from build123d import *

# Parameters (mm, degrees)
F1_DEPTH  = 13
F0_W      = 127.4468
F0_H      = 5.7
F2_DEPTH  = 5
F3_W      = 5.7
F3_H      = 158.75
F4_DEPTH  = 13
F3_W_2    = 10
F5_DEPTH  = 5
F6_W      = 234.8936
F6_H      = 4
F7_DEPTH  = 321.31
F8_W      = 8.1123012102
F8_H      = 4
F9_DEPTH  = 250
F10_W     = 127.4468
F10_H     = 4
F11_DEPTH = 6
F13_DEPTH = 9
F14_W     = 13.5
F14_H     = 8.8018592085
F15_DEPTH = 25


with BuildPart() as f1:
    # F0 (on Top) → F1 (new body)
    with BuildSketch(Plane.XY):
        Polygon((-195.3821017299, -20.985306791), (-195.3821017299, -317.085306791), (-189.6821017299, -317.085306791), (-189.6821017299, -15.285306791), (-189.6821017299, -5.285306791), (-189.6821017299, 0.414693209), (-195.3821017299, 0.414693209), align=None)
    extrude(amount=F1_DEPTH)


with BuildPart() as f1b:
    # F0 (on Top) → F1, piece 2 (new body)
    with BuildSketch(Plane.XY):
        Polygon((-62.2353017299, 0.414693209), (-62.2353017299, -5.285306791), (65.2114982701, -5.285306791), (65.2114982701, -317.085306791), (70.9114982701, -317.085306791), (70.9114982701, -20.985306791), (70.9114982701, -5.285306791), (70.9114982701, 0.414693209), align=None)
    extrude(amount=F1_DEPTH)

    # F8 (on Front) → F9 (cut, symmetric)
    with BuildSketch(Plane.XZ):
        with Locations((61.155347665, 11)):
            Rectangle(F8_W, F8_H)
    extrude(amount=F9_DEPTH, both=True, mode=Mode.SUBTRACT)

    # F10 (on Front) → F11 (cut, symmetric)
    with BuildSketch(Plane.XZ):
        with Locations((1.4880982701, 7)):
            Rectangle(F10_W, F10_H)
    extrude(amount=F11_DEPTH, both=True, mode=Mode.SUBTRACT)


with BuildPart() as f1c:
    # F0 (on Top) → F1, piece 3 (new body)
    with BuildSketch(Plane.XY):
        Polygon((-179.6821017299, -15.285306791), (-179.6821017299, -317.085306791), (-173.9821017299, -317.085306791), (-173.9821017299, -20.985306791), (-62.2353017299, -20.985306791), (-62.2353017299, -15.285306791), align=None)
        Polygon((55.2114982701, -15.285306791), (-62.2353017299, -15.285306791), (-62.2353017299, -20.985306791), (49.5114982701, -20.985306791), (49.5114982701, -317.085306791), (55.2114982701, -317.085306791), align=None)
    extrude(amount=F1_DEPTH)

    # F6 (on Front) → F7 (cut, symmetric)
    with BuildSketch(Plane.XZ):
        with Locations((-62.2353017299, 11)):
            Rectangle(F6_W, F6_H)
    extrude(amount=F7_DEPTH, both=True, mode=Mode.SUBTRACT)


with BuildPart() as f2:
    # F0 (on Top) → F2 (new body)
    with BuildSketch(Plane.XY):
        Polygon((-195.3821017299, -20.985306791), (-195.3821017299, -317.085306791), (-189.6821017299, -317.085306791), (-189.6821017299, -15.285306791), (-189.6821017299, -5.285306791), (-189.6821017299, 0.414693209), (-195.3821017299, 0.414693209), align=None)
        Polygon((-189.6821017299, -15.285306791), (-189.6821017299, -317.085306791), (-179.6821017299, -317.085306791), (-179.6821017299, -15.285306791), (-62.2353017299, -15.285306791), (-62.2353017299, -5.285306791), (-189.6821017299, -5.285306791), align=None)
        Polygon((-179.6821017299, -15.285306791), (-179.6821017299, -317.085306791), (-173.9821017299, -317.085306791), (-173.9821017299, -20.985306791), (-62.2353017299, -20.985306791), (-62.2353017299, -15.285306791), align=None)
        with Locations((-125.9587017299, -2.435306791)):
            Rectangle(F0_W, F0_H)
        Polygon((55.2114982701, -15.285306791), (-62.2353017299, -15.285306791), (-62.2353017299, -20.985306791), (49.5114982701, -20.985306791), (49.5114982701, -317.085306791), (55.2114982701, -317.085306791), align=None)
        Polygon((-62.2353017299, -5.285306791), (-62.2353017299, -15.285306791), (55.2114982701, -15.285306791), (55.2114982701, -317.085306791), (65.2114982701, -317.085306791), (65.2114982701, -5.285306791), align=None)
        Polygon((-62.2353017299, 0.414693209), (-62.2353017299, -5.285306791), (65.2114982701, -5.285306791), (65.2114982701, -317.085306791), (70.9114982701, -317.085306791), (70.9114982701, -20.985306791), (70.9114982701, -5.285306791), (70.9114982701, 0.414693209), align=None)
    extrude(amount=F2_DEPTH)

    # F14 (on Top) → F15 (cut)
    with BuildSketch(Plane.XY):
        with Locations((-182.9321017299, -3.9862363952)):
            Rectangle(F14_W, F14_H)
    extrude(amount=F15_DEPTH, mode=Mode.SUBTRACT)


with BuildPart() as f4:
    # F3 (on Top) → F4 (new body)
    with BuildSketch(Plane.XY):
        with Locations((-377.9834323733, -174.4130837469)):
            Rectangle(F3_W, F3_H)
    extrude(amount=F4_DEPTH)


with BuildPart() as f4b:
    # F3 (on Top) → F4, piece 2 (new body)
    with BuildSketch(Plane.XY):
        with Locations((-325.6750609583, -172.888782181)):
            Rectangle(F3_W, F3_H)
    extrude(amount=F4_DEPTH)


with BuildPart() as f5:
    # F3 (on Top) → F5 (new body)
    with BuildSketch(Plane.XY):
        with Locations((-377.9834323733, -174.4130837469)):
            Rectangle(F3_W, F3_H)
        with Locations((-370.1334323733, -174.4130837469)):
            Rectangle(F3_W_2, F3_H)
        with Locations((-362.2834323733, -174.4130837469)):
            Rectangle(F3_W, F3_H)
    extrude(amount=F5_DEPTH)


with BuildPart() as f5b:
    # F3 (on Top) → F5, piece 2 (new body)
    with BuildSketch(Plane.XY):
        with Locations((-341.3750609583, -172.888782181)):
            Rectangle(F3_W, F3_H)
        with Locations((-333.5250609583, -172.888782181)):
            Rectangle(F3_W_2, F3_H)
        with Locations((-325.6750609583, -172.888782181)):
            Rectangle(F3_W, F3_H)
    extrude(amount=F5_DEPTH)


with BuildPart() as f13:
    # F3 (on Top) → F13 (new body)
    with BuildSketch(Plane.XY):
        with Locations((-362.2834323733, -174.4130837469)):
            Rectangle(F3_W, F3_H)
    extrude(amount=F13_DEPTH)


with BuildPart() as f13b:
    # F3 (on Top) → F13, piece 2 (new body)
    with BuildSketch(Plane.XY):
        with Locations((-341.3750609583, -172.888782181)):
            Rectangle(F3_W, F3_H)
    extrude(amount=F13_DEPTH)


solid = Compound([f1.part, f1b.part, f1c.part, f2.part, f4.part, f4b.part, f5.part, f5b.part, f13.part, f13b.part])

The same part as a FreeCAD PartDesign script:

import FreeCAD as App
import Part
import Sketcher
from FreeCAD import Vector
Q = App.Units.Quantity

doc = App.newDocument("Part")
body = doc.addObject("PartDesign::Body", "Body")

# Sketch on XY plane
sketch1 = body.newObject("Sketcher::SketchObject", "Sketch")
sketch1.AttachmentSupport = (doc.getObject("XY_Plane"), [""])
sketch1.MapMode = "FlatFace"
sketch1.addGeometry(Part.LineSegment(Vector(-195, -317, 0), Vector(-190, -317, 0)), False)
sketch1.addGeometry(Part.LineSegment(Vector(-190, -317, 0), Vector(-190, 0, 0)), False)
sketch1.addGeometry(Part.LineSegment(Vector(-190, 0, 0), Vector(-195, 0, 0)), False)
sketch1.addGeometry(Part.LineSegment(Vector(-195, 0, 0), Vector(-195, -317, 0)), False)
sketch1.addConstraint(Sketcher.Constraint("Coincident", 0, 2, 1, 1))
sketch1.addConstraint(Sketcher.Constraint("Coincident", 1, 2, 2, 1))
sketch1.addConstraint(Sketcher.Constraint("Coincident", 2, 2, 3, 1))
sketch1.addConstraint(Sketcher.Constraint("Coincident", 3, 2, 0, 1))
sketch1.addConstraint(Sketcher.Constraint("Horizontal", 0))
sketch1.addConstraint(Sketcher.Constraint("Vertical", 1))
sketch1.addConstraint(Sketcher.Constraint("Horizontal", 2))
sketch1.addConstraint(Sketcher.Constraint("Vertical", 3))
sketch1.addConstraint(Sketcher.Constraint("DistanceX", 0, 1, 0, 2, Q("5.7 mm")))
sketch1.addConstraint(Sketcher.Constraint("DistanceY", 1, 1, 1, 2, Q("317.5 mm")))
sketch1.addConstraint(Sketcher.Constraint("DistanceX", 0, 2, -1, 1, Q("189.682102 mm")))
sketch1.addConstraint(Sketcher.Constraint("DistanceY", 0, 2, -1, 1, Q("317.085307 mm")))
pad1 = body.newObject("PartDesign::Pad", "Pad")
pad1.Profile = sketch1
pad1.Length = 13
body2 = doc.addObject("PartDesign::Body", "Body001")
body2.AllowCompound = True

# Sketch on XY plane
sketch2 = body2.newObject("Sketcher::SketchObject", "Sketch001")
sketch2.AttachmentSupport = (doc.getObject("XY_Plane001"), [""])
sketch2.MapMode = "FlatFace"
sketch2.addGeometry(Part.LineSegment(Vector(-62, 0, 0), Vector(-62, -5, 0)), False)
sketch2.addGeometry(Part.LineSegment(Vector(-62, -5, 0), Vector(65, -5, 0)), False)
sketch2.addGeometry(Part.LineSegment(Vector(65, -5, 0), Vector(65, -317, 0)), False)
sketch2.addGeometry(Part.LineSegment(Vector(65, -317, 0), Vector(71, -317, 0)), False)
sketch2.addGeometry(Part.LineSegment(Vector(71, -317, 0), Vector(71, 0, 0)), False)
sketch2.addGeometry(Part.LineSegment(Vector(71, 0, 0), Vector(-62, 0, 0)), False)
sketch2.addConstraint(Sketcher.Constraint("Coincident", 0, 2, 1, 1))
sketch2.addConstraint(Sketcher.Constraint("Coincident", 1, 2, 2, 1))
sketch2.addConstraint(Sketcher.Constraint("Coincident", 2, 2, 3, 1))
sketch2.addConstraint(Sketcher.Constraint("Coincident", 3, 2, 4, 1))
sketch2.addConstraint(Sketcher.Constraint("Coincident", 4, 2, 5, 1))
sketch2.addConstraint(Sketcher.Constraint("Coincident", 5, 2, 0, 1))
sketch2.addConstraint(Sketcher.Constraint("Vertical", 0))
sketch2.addConstraint(Sketcher.Constraint("Horizontal", 1))
sketch2.addConstraint(Sketcher.Constraint("Vertical", 2))
sketch2.addConstraint(Sketcher.Constraint("Horizontal", 3))
sketch2.addConstraint(Sketcher.Constraint("Vertical", 4))
sketch2.addConstraint(Sketcher.Constraint("Horizontal", 5))
sketch2.addConstraint(Sketcher.Constraint("Equal", 3, 0))
sketch2.addConstraint(Sketcher.Constraint("DistanceX", 3, 1, 3, 2, Q("5.7 mm")))
sketch2.addConstraint(Sketcher.Constraint("DistanceY", 2, 2, 2, 1, Q("311.8 mm")))
sketch2.addConstraint(Sketcher.Constraint("DistanceX", 1, 1, 1, 2, Q("127.4468 mm")))
sketch2.addConstraint(Sketcher.Constraint("DistanceX", 0, 2, -1, 1, Q("62.235302 mm")))
sketch2.addConstraint(Sketcher.Constraint("DistanceY", 0, 2, -1, 1, Q("5.285307 mm")))
pad2 = body2.newObject("PartDesign::Pad", "Pad001")
pad2.Profile = sketch2
pad2.Length = 13

# Sketch on XZ plane
sketch3 = body2.newObject("Sketcher::SketchObject", "Sketch002")
sketch3.AttachmentSupport = (doc.getObject("XZ_Plane001"), [""])
sketch3.MapMode = "FlatFace"
sketch3.addGeometry(Part.LineSegment(Vector(57.1, 13, 0), Vector(57.1, 9, 0)), False)
sketch3.addGeometry(Part.LineSegment(Vector(57.1, 9, 0), Vector(65.2, 9, 0)), False)
sketch3.addGeometry(Part.LineSegment(Vector(65.2, 9, 0), Vector(65.2, 13, 0)), False)
sketch3.addGeometry(Part.LineSegment(Vector(65.2, 13, 0), Vector(57.1, 13, 0)), False)
sketch3.addConstraint(Sketcher.Constraint("Coincident", 0, 2, 1, 1))
sketch3.addConstraint(Sketcher.Constraint("Coincident", 1, 2, 2, 1))
sketch3.addConstraint(Sketcher.Constraint("Coincident", 2, 2, 3, 1))
sketch3.addConstraint(Sketcher.Constraint("Coincident", 3, 2, 0, 1))
sketch3.addConstraint(Sketcher.Constraint("Vertical", 0))
sketch3.addConstraint(Sketcher.Constraint("Horizontal", 1))
sketch3.addConstraint(Sketcher.Constraint("Vertical", 2))
sketch3.addConstraint(Sketcher.Constraint("Horizontal", 3))
sketch3.addConstraint(Sketcher.Constraint("DistanceY", 0, 2, 0, 1, Q("4 mm")))
sketch3.addConstraint(Sketcher.Constraint("DistanceY", -1, 1, 0, 2, Q("9 mm")))
sketch3.addConstraint(Sketcher.Constraint("DistanceX", 1, 1, 1, 2, Q("8.112301 mm")))
sketch3.addConstraint(Sketcher.Constraint("DistanceX", -1, 1, 1, 2, Q("65.211498 mm")))
pocket1 = body2.newObject("PartDesign::Pocket", "Pocket")
pocket1.Profile = sketch3
pocket1.Length = 500
pocket1.Midplane = True

# Sketch on XZ plane
sketch4 = body2.newObject("Sketcher::SketchObject", "Sketch003")
sketch4.AttachmentSupport = (doc.getObject("XZ_Plane001"), [""])
sketch4.MapMode = "FlatFace"
sketch4.addGeometry(Part.LineSegment(Vector(-62.2, 9, 0), Vector(-62.2, 5, 0)), False)
sketch4.addGeometry(Part.LineSegment(Vector(-62.2, 5, 0), Vector(65.2, 5, 0)), False)
sketch4.addGeometry(Part.LineSegment(Vector(65.2, 5, 0), Vector(65.2, 9, 0)), False)
sketch4.addGeometry(Part.LineSegment(Vector(65.2, 9, 0), Vector(-62.2, 9, 0)), False)
sketch4.addConstraint(Sketcher.Constraint("Coincident", 0, 2, 1, 1))
sketch4.addConstraint(Sketcher.Constraint("Coincident", 1, 2, 2, 1))
sketch4.addConstraint(Sketcher.Constraint("Coincident", 2, 2, 3, 1))
sketch4.addConstraint(Sketcher.Constraint("Coincident", 3, 2, 0, 1))
sketch4.addConstraint(Sketcher.Constraint("Vertical", 0))
sketch4.addConstraint(Sketcher.Constraint("Horizontal", 1))
sketch4.addConstraint(Sketcher.Constraint("Vertical", 2))
sketch4.addConstraint(Sketcher.Constraint("Horizontal", 3))
sketch4.addConstraint(Sketcher.Constraint("DistanceY", 0, 2, 0, 1, Q("4 mm")))
sketch4.addConstraint(Sketcher.Constraint("DistanceY", -1, 1, 0, 2, Q("5 mm")))
sketch4.addConstraint(Sketcher.Constraint("DistanceX", 1, 1, 1, 2, Q("127.4468 mm")))
sketch4.addConstraint(Sketcher.Constraint("DistanceX", 0, 2, -1, 1, Q("62.235302 mm")))
pocket2 = body2.newObject("PartDesign::Pocket", "Pocket001")
pocket2.Profile = sketch4
pocket2.Length = 12
pocket2.Midplane = True
body3 = doc.addObject("PartDesign::Body", "Body002")

# Sketch on XY plane
sketch5 = body3.newObject("Sketcher::SketchObject", "Sketch004")
sketch5.AttachmentSupport = (doc.getObject("XY_Plane002"), [""])
sketch5.MapMode = "FlatFace"
sketch5.addGeometry(Part.LineSegment(Vector(-180, -15, 0), Vector(-180, -317, 0)), False)
sketch5.addGeometry(Part.LineSegment(Vector(-180, -317, 0), Vector(-174, -317, 0)), False)
sketch5.addGeometry(Part.LineSegment(Vector(-174, -317, 0), Vector(-174, -21, 0)), False)
sketch5.addGeometry(Part.LineSegment(Vector(-174, -21, 0), Vector(50, -21, 0)), False)
sketch5.addGeometry(Part.LineSegment(Vector(50, -21, 0), Vector(50, -317, 0)), False)
sketch5.addGeometry(Part.LineSegment(Vector(50, -317, 0), Vector(55, -317, 0)), False)
sketch5.addGeometry(Part.LineSegment(Vector(55, -317, 0), Vector(55, -15, 0)), False)
sketch5.addGeometry(Part.LineSegment(Vector(55, -15, 0), Vector(-180, -15, 0)), False)
sketch5.addConstraint(Sketcher.Constraint("Coincident", 0, 2, 1, 1))
sketch5.addConstraint(Sketcher.Constraint("Coincident", 1, 2, 2, 1))
sketch5.addConstraint(Sketcher.Constraint("Coincident", 2, 2, 3, 1))
sketch5.addConstraint(Sketcher.Constraint("Coincident", 3, 2, 4, 1))
sketch5.addConstraint(Sketcher.Constraint("Coincident", 4, 2, 5, 1))
sketch5.addConstraint(Sketcher.Constraint("Coincident", 5, 2, 6, 1))
sketch5.addConstraint(Sketcher.Constraint("Coincident", 6, 2, 7, 1))
sketch5.addConstraint(Sketcher.Constraint("Coincident", 7, 2, 0, 1))
sketch5.addConstraint(Sketcher.Constraint("Vertical", 0))
sketch5.addConstraint(Sketcher.Constraint("Horizontal", 1))
sketch5.addConstraint(Sketcher.Constraint("Vertical", 2))
sketch5.addConstraint(Sketcher.Constraint("Horizontal", 3))
sketch5.addConstraint(Sketcher.Constraint("Vertical", 4))
sketch5.addConstraint(Sketcher.Constraint("Horizontal", 5))
sketch5.addConstraint(Sketcher.Constraint("Vertical", 6))
sketch5.addConstraint(Sketcher.Constraint("Horizontal", 7))
sketch5.addConstraint(Sketcher.Constraint("Horizontal", 1, 2, 4, 2))
sketch5.addConstraint(Sketcher.Constraint("Equal", 1, 5))
sketch5.addConstraint(Sketcher.Constraint("DistanceX", 1, 1, 1, 2, Q("5.7 mm")))
sketch5.addConstraint(Sketcher.Constraint("DistanceY", 0, 2, 0, 1, Q("301.8 mm")))
sketch5.addConstraint(Sketcher.Constraint("DistanceY", 2, 1, 2, 2, Q("296.1 mm")))
sketch5.addConstraint(Sketcher.Constraint("DistanceX", 3, 1, 3, 2, Q("223.4936 mm")))
sketch5.addConstraint(Sketcher.Constraint("DistanceX", 0, 2, -1, 1, Q("179.682102 mm")))
sketch5.addConstraint(Sketcher.Constraint("DistanceY", 0, 2, -1, 1, Q("317.085307 mm")))
pad3 = body3.newObject("PartDesign::Pad", "Pad002")
pad3.Profile = sketch5
pad3.Length = 13

# Sketch on XZ plane
sketch6 = body3.newObject("Sketcher::SketchObject", "Sketch005")
sketch6.AttachmentSupport = (doc.getObject("XZ_Plane002"), [""])
sketch6.MapMode = "FlatFace"
sketch6.addGeometry(Part.LineSegment(Vector(-179.7, 13, 0), Vector(-179.7, 9, 0)), False)
sketch6.addGeometry(Part.LineSegment(Vector(-179.7, 9, 0), Vector(55.2, 9, 0)), False)
sketch6.addGeometry(Part.LineSegment(Vector(55.2, 9, 0), Vector(55.2, 13, 0)), False)
sketch6.addGeometry(Part.LineSegment(Vector(55.2, 13, 0), Vector(-179.7, 13, 0)), False)
sketch6.addConstraint(Sketcher.Constraint("Coincident", 0, 2, 1, 1))
sketch6.addConstraint(Sketcher.Constraint("Coincident", 1, 2, 2, 1))
sketch6.addConstraint(Sketcher.Constraint("Coincident", 2, 2, 3, 1))
sketch6.addConstraint(Sketcher.Constraint("Coincident", 3, 2, 0, 1))
sketch6.addConstraint(Sketcher.Constraint("Vertical", 0))
sketch6.addConstraint(Sketcher.Constraint("Horizontal", 1))
sketch6.addConstraint(Sketcher.Constraint("Vertical", 2))
sketch6.addConstraint(Sketcher.Constraint("Horizontal", 3))
sketch6.addConstraint(Sketcher.Constraint("DistanceY", 0, 2, 0, 1, Q("4 mm")))
sketch6.addConstraint(Sketcher.Constraint("DistanceY", -1, 1, 0, 2, Q("9 mm")))
sketch6.addConstraint(Sketcher.Constraint("DistanceX", 1, 1, 1, 2, Q("234.8936 mm")))
sketch6.addConstraint(Sketcher.Constraint("DistanceX", 0, 2, -1, 1, Q("179.682102 mm")))
pocket3 = body3.newObject("PartDesign::Pocket", "Pocket002")
pocket3.Profile = sketch6
pocket3.Length = 642.62
pocket3.Midplane = True
body4 = doc.addObject("PartDesign::Body", "Body003")

# Sketch on XY plane
sketch7 = body4.newObject("Sketcher::SketchObject", "Sketch006")
sketch7.AttachmentSupport = (doc.getObject("XY_Plane003"), [""])
sketch7.MapMode = "FlatFace"
sketch7.addGeometry(Part.LineSegment(Vector(-195, -317, 0), Vector(-174, -317, 0)), False)
sketch7.addGeometry(Part.LineSegment(Vector(-174, -317, 0), Vector(-174, -21, 0)), False)
sketch7.addGeometry(Part.LineSegment(Vector(-174, -21, 0), Vector(50, -21, 0)), False)
sketch7.addGeometry(Part.LineSegment(Vector(50, -21, 0), Vector(50, -317, 0)), False)
sketch7.addGeometry(Part.LineSegment(Vector(50, -317, 0), Vector(71, -317, 0)), False)
sketch7.addGeometry(Part.LineSegment(Vector(71, -317, 0), Vector(71, 0, 0)), False)
sketch7.addGeometry(Part.LineSegment(Vector(71, 0, 0), Vector(-195, 0, 0)), False)
sketch7.addGeometry(Part.LineSegment(Vector(-195, 0, 0), Vector(-195, -317, 0)), False)
sketch7.addConstraint(Sketcher.Constraint("Coincident", 0, 2, 1, 1))
sketch7.addConstraint(Sketcher.Constraint("Coincident", 1, 2, 2, 1))
sketch7.addConstraint(Sketcher.Constraint("Coincident", 2, 2, 3, 1))
sketch7.addConstraint(Sketcher.Constraint("Coincident", 3, 2, 4, 1))
sketch7.addConstraint(Sketcher.Constraint("Coincident", 4, 2, 5, 1))
sketch7.addConstraint(Sketcher.Constraint("Coincident", 5, 2, 6, 1))
sketch7.addConstraint(Sketcher.Constraint("Coincident", 6, 2, 7, 1))
sketch7.addConstraint(Sketcher.Constraint("Coincident", 7, 2, 0, 1))
sketch7.addConstraint(Sketcher.Constraint("Horizontal", 0))
sketch7.addConstraint(Sketcher.Constraint("Vertical", 1))
sketch7.addConstraint(Sketcher.Constraint("Horizontal", 2))
sketch7.addConstraint(Sketcher.Constraint("Vertical", 3))
sketch7.addConstraint(Sketcher.Constraint("Horizontal", 4))
sketch7.addConstraint(Sketcher.Constraint("Vertical", 5))
sketch7.addConstraint(Sketcher.Constraint("Horizontal", 6))
sketch7.addConstraint(Sketcher.Constraint("Vertical", 7))
sketch7.addConstraint(Sketcher.Constraint("Horizontal", 0, 2, 3, 2))
sketch7.addConstraint(Sketcher.Constraint("Equal", 0, 4))
sketch7.addConstraint(Sketcher.Constraint("DistanceX", 0, 1, 0, 2, Q("21.4 mm")))
sketch7.addConstraint(Sketcher.Constraint("DistanceY", 1, 1, 1, 2, Q("296.1 mm")))
sketch7.addConstraint(Sketcher.Constraint("DistanceY", 5, 1, 5, 2, Q("317.5 mm")))
sketch7.addConstraint(Sketcher.Constraint("DistanceX", 2, 1, 2, 2, Q("223.4936 mm")))
sketch7.addConstraint(Sketcher.Constraint("DistanceX", 0, 2, -1, 1, Q("173.982102 mm")))
sketch7.addConstraint(Sketcher.Constraint("DistanceY", 0, 2, -1, 1, Q("317.085307 mm")))
pad4 = body4.newObject("PartDesign::Pad", "Pad003")
pad4.Profile = sketch7
pad4.Length = 5

# Sketch on XY plane
sketch8 = body4.newObject("Sketcher::SketchObject", "Sketch007")
sketch8.AttachmentSupport = (doc.getObject("XY_Plane003"), [""])
sketch8.MapMode = "FlatFace"
sketch8.addGeometry(Part.LineSegment(Vector(-190, 0, 0), Vector(-190, -8, 0)), False)
sketch8.addGeometry(Part.LineSegment(Vector(-190, -8, 0), Vector(-176, -8, 0)), False)
sketch8.addGeometry(Part.LineSegment(Vector(-176, -8, 0), Vector(-176, 0, 0)), False)
sketch8.addGeometry(Part.LineSegment(Vector(-176, 0, 0), Vector(-190, 0, 0)), False)
sketch8.addConstraint(Sketcher.Constraint("Coincident", 0, 2, 1, 1))
sketch8.addConstraint(Sketcher.Constraint("Coincident", 1, 2, 2, 1))
sketch8.addConstraint(Sketcher.Constraint("Coincident", 2, 2, 3, 1))
sketch8.addConstraint(Sketcher.Constraint("Coincident", 3, 2, 0, 1))
sketch8.addConstraint(Sketcher.Constraint("Vertical", 0))
sketch8.addConstraint(Sketcher.Constraint("Horizontal", 1))
sketch8.addConstraint(Sketcher.Constraint("Vertical", 2))
sketch8.addConstraint(Sketcher.Constraint("Horizontal", 3))
sketch8.addConstraint(Sketcher.Constraint("DistanceX", 1, 1, 1, 2, Q("13.5 mm")))
sketch8.addConstraint(Sketcher.Constraint("DistanceY", 0, 2, 0, 1, Q("8.801859 mm")))
sketch8.addConstraint(Sketcher.Constraint("DistanceX", 0, 2, -1, 1, Q("189.682102 mm")))
sketch8.addConstraint(Sketcher.Constraint("DistanceY", 0, 2, -1, 1, Q("8.387166 mm")))
pocket4 = body4.newObject("PartDesign::Pocket", "Pocket003")
pocket4.Profile = sketch8
pocket4.Length = 25
pocket4.Reversed = True
body5 = doc.addObject("PartDesign::Body", "Body004")

# Sketch on XY plane
sketch9 = body5.newObject("Sketcher::SketchObject", "Sketch008")
sketch9.AttachmentSupport = (doc.getObject("XY_Plane004"), [""])
sketch9.MapMode = "FlatFace"
sketch9.addGeometry(Part.LineSegment(Vector(-381, -95, 0), Vector(-381, -254, 0)), False)
sketch9.addGeometry(Part.LineSegment(Vector(-381, -254, 0), Vector(-375, -254, 0)), False)
sketch9.addGeometry(Part.LineSegment(Vector(-375, -254, 0), Vector(-375, -95, 0)), False)
sketch9.addGeometry(Part.LineSegment(Vector(-375, -95, 0), Vector(-381, -95, 0)), False)
sketch9.addConstraint(Sketcher.Constraint("Coincident", 0, 2, 1, 1))
sketch9.addConstraint(Sketcher.Constraint("Coincident", 1, 2, 2, 1))
sketch9.addConstraint(Sketcher.Constraint("Coincident", 2, 2, 3, 1))
sketch9.addConstraint(Sketcher.Constraint("Coincident", 3, 2, 0, 1))
sketch9.addConstraint(Sketcher.Constraint("Vertical", 0))
sketch9.addConstraint(Sketcher.Constraint("Horizontal", 1))
sketch9.addConstraint(Sketcher.Constraint("Vertical", 2))
sketch9.addConstraint(Sketcher.Constraint("Horizontal", 3))
sketch9.addConstraint(Sketcher.Constraint("DistanceX", 1, 1, 1, 2, Q("5.7 mm")))
sketch9.addConstraint(Sketcher.Constraint("DistanceY", 0, 2, 0, 1, Q("158.75 mm")))
sketch9.addConstraint(Sketcher.Constraint("DistanceX", 0, 2, -1, 1, Q("380.833432 mm")))
sketch9.addConstraint(Sketcher.Constraint("DistanceY", 0, 2, -1, 1, Q("253.788084 mm")))
pad5 = body5.newObject("PartDesign::Pad", "Pad004")
pad5.Profile = sketch9
pad5.Length = 13
body6 = doc.addObject("PartDesign::Body", "Body005")

# Sketch on XY plane
sketch10 = body6.newObject("Sketcher::SketchObject", "Sketch009")
sketch10.AttachmentSupport = (doc.getObject("XY_Plane005"), [""])
sketch10.MapMode = "FlatFace"
sketch10.addGeometry(Part.LineSegment(Vector(-329, -94, 0), Vector(-329, -252, 0)), False)
sketch10.addGeometry(Part.LineSegment(Vector(-329, -252, 0), Vector(-323, -252, 0)), False)
sketch10.addGeometry(Part.LineSegment(Vector(-323, -252, 0), Vector(-323, -94, 0)), False)
sketch10.addGeometry(Part.LineSegment(Vector(-323, -94, 0), Vector(-329, -94, 0)), False)
sketch10.addConstraint(Sketcher.Constraint("Coincident", 0, 2, 1, 1))
sketch10.addConstraint(Sketcher.Constraint("Coincident", 1, 2, 2, 1))
sketch10.addConstraint(Sketcher.Constraint("Coincident", 2, 2, 3, 1))
sketch10.addConstraint(Sketcher.Constraint("Coincident", 3, 2, 0, 1))
sketch10.addConstraint(Sketcher.Constraint("Vertical", 0))
sketch10.addConstraint(Sketcher.Constraint("Horizontal", 1))
sketch10.addConstraint(Sketcher.Constraint("Vertical", 2))
sketch10.addConstraint(Sketcher.Constraint("Horizontal", 3))
sketch10.addConstraint(Sketcher.Constraint("DistanceX", 1, 1, 1, 2, Q("5.7 mm")))
sketch10.addConstraint(Sketcher.Constraint("DistanceY", 0, 2, 0, 1, Q("158.75 mm")))
sketch10.addConstraint(Sketcher.Constraint("DistanceX", 0, 2, -1, 1, Q("328.525061 mm")))
sketch10.addConstraint(Sketcher.Constraint("DistanceY", 0, 2, -1, 1, Q("252.263782 mm")))
pad6 = body6.newObject("PartDesign::Pad", "Pad005")
pad6.Profile = sketch10
pad6.Length = 13
body7 = doc.addObject("PartDesign::Body", "Body006")

# Sketch on XY plane
sketch11 = body7.newObject("Sketcher::SketchObject", "Sketch010")
sketch11.AttachmentSupport = (doc.getObject("XY_Plane006"), [""])
sketch11.MapMode = "FlatFace"
sketch11.addGeometry(Part.LineSegment(Vector(-381, -95, 0), Vector(-381, -254, 0)), False)
sketch11.addGeometry(Part.LineSegment(Vector(-381, -254, 0), Vector(-359, -254, 0)), False)
sketch11.addGeometry(Part.LineSegment(Vector(-359, -254, 0), Vector(-359, -95, 0)), False)
sketch11.addGeometry(Part.LineSegment(Vector(-359, -95, 0), Vector(-381, -95, 0)), False)
sketch11.addConstraint(Sketcher.Constraint("Coincident", 0, 2, 1, 1))
sketch11.addConstraint(Sketcher.Constraint("Coincident", 1, 2, 2, 1))
sketch11.addConstraint(Sketcher.Constraint("Coincident", 2, 2, 3, 1))
sketch11.addConstraint(Sketcher.Constraint("Coincident", 3, 2, 0, 1))
sketch11.addConstraint(Sketcher.Constraint("Vertical", 0))
sketch11.addConstraint(Sketcher.Constraint("Horizontal", 1))
sketch11.addConstraint(Sketcher.Constraint("Vertical", 2))
sketch11.addConstraint(Sketcher.Constraint("Horizontal", 3))
sketch11.addConstraint(Sketcher.Constraint("DistanceX", 1, 1, 1, 2, Q("21.4 mm")))
sketch11.addConstraint(Sketcher.Constraint("DistanceY", 0, 2, 0, 1, Q("158.75 mm")))
sketch11.addConstraint(Sketcher.Constraint("DistanceX", 0, 2, -1, 1, Q("380.833432 mm")))
sketch11.addConstraint(Sketcher.Constraint("DistanceY", 0, 2, -1, 1, Q("253.788084 mm")))
pad7 = body7.newObject("PartDesign::Pad", "Pad006")
pad7.Profile = sketch11
pad7.Length = 5
body8 = doc.addObject("PartDesign::Body", "Body007")

# Sketch on XY plane
sketch12 = body8.newObject("Sketcher::SketchObject", "Sketch011")
sketch12.AttachmentSupport = (doc.getObject("XY_Plane007"), [""])
sketch12.MapMode = "FlatFace"
sketch12.addGeometry(Part.LineSegment(Vector(-344, -94, 0), Vector(-344, -252, 0)), False)
sketch12.addGeometry(Part.LineSegment(Vector(-344, -252, 0), Vector(-323, -252, 0)), False)
sketch12.addGeometry(Part.LineSegment(Vector(-323, -252, 0), Vector(-323, -94, 0)), False)
sketch12.addGeometry(Part.LineSegment(Vector(-323, -94, 0), Vector(-344, -94, 0)), False)
sketch12.addConstraint(Sketcher.Constraint("Coincident", 0, 2, 1, 1))
sketch12.addConstraint(Sketcher.Constraint("Coincident", 1, 2, 2, 1))
sketch12.addConstraint(Sketcher.Constraint("Coincident", 2, 2, 3, 1))
sketch12.addConstraint(Sketcher.Constraint("Coincident", 3, 2, 0, 1))
sketch12.addConstraint(Sketcher.Constraint("Vertical", 0))
sketch12.addConstraint(Sketcher.Constraint("Horizontal", 1))
sketch12.addConstraint(Sketcher.Constraint("Vertical", 2))
sketch12.addConstraint(Sketcher.Constraint("Horizontal", 3))
sketch12.addConstraint(Sketcher.Constraint("DistanceX", 1, 1, 1, 2, Q("21.4 mm")))
sketch12.addConstraint(Sketcher.Constraint("DistanceY", 0, 2, 0, 1, Q("158.75 mm")))
sketch12.addConstraint(Sketcher.Constraint("DistanceX", 0, 2, -1, 1, Q("344.225061 mm")))
sketch12.addConstraint(Sketcher.Constraint("DistanceY", 0, 2, -1, 1, Q("252.263782 mm")))
pad8 = body8.newObject("PartDesign::Pad", "Pad007")
pad8.Profile = sketch12
pad8.Length = 5
body9 = doc.addObject("PartDesign::Body", "Body008")

# Sketch on XY plane
sketch13 = body9.newObject("Sketcher::SketchObject", "Sketch012")
sketch13.AttachmentSupport = (doc.getObject("XY_Plane008"), [""])
sketch13.MapMode = "FlatFace"
sketch13.addGeometry(Part.LineSegment(Vector(-365, -95, 0), Vector(-365, -254, 0)), False)
sketch13.addGeometry(Part.LineSegment(Vector(-365, -254, 0), Vector(-359, -254, 0)), False)
sketch13.addGeometry(Part.LineSegment(Vector(-359, -254, 0), Vector(-359, -95, 0)), False)
sketch13.addGeometry(Part.LineSegment(Vector(-359, -95, 0), Vector(-365, -95, 0)), False)
sketch13.addConstraint(Sketcher.Constraint("Coincident", 0, 2, 1, 1))
sketch13.addConstraint(Sketcher.Constraint("Coincident", 1, 2, 2, 1))
sketch13.addConstraint(Sketcher.Constraint("Coincident", 2, 2, 3, 1))
sketch13.addConstraint(Sketcher.Constraint("Coincident", 3, 2, 0, 1))
sketch13.addConstraint(Sketcher.Constraint("Vertical", 0))
sketch13.addConstraint(Sketcher.Constraint("Horizontal", 1))
sketch13.addConstraint(Sketcher.Constraint("Vertical", 2))
sketch13.addConstraint(Sketcher.Constraint("Horizontal", 3))
sketch13.addConstraint(Sketcher.Constraint("DistanceX", 1, 1, 1, 2, Q("5.7 mm")))
sketch13.addConstraint(Sketcher.Constraint("DistanceY", 0, 2, 0, 1, Q("158.75 mm")))
sketch13.addConstraint(Sketcher.Constraint("DistanceX", 0, 2, -1, 1, Q("365.133432 mm")))
sketch13.addConstraint(Sketcher.Constraint("DistanceY", 0, 2, -1, 1, Q("253.788084 mm")))
pad9 = body9.newObject("PartDesign::Pad", "Pad008")
pad9.Profile = sketch13
pad9.Length = 9
body10 = doc.addObject("PartDesign::Body", "Body009")

# Sketch on XY plane
sketch14 = body10.newObject("Sketcher::SketchObject", "Sketch013")
sketch14.AttachmentSupport = (doc.getObject("XY_Plane009"), [""])
sketch14.MapMode = "FlatFace"
sketch14.addGeometry(Part.LineSegment(Vector(-344, -94, 0), Vector(-344, -252, 0)), False)
sketch14.addGeometry(Part.LineSegment(Vector(-344, -252, 0), Vector(-339, -252, 0)), False)
sketch14.addGeometry(Part.LineSegment(Vector(-339, -252, 0), Vector(-339, -94, 0)), False)
sketch14.addGeometry(Part.LineSegment(Vector(-339, -94, 0), Vector(-344, -94, 0)), False)
sketch14.addConstraint(Sketcher.Constraint("Coincident", 0, 2, 1, 1))
sketch14.addConstraint(Sketcher.Constraint("Coincident", 1, 2, 2, 1))
sketch14.addConstraint(Sketcher.Constraint("Coincident", 2, 2, 3, 1))
sketch14.addConstraint(Sketcher.Constraint("Coincident", 3, 2, 0, 1))
sketch14.addConstraint(Sketcher.Constraint("Vertical", 0))
sketch14.addConstraint(Sketcher.Constraint("Horizontal", 1))
sketch14.addConstraint(Sketcher.Constraint("Vertical", 2))
sketch14.addConstraint(Sketcher.Constraint("Horizontal", 3))
sketch14.addConstraint(Sketcher.Constraint("DistanceX", 1, 1, 1, 2, Q("5.7 mm")))
sketch14.addConstraint(Sketcher.Constraint("DistanceY", 0, 2, 0, 1, Q("158.75 mm")))
sketch14.addConstraint(Sketcher.Constraint("DistanceX", 0, 2, -1, 1, Q("344.225061 mm")))
sketch14.addConstraint(Sketcher.Constraint("DistanceY", 0, 2, -1, 1, Q("252.263782 mm")))
pad10 = body10.newObject("PartDesign::Pad", "Pad009")
pad10.Profile = sketch14
pad10.Length = 9

doc.recompute()
